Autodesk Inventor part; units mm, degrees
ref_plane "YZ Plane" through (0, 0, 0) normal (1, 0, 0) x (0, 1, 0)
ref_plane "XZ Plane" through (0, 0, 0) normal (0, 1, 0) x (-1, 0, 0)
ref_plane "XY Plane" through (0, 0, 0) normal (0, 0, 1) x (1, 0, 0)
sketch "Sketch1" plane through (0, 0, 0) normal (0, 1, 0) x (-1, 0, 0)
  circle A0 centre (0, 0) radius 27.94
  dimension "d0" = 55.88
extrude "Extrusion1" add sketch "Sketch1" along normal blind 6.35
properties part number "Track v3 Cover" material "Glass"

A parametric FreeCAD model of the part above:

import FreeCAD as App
import Part
import Sketcher
Q = App.Units.Quantity

doc = App.newDocument("Part")
body = doc.addObject("PartDesign::Body", "Body")

sketch1 = body.newObject("Sketcher::SketchObject", "Sketch")
sketch1.AttachmentSupport = (doc.getObject("XZ_Plane"), [""])
sketch1.MapMode = "FlatFace"
sketch1.addGeometry(Part.Circle(App.Vector(0, 0, 0), App.Vector(0, 0, 1), 28), False)
sketch1.addConstraint(Sketcher.Constraint("Coincident", 0, 3, -1, 1))
sketch1.addConstraint(Sketcher.Constraint("Diameter", 0, Q("2.2 in")))
pad1 = body.newObject("PartDesign::Pad", "Pad")
pad1.Profile = sketch1
pad1.Length = Q("0.25 in")
pad1.Reversed = True

doc.recompute()
